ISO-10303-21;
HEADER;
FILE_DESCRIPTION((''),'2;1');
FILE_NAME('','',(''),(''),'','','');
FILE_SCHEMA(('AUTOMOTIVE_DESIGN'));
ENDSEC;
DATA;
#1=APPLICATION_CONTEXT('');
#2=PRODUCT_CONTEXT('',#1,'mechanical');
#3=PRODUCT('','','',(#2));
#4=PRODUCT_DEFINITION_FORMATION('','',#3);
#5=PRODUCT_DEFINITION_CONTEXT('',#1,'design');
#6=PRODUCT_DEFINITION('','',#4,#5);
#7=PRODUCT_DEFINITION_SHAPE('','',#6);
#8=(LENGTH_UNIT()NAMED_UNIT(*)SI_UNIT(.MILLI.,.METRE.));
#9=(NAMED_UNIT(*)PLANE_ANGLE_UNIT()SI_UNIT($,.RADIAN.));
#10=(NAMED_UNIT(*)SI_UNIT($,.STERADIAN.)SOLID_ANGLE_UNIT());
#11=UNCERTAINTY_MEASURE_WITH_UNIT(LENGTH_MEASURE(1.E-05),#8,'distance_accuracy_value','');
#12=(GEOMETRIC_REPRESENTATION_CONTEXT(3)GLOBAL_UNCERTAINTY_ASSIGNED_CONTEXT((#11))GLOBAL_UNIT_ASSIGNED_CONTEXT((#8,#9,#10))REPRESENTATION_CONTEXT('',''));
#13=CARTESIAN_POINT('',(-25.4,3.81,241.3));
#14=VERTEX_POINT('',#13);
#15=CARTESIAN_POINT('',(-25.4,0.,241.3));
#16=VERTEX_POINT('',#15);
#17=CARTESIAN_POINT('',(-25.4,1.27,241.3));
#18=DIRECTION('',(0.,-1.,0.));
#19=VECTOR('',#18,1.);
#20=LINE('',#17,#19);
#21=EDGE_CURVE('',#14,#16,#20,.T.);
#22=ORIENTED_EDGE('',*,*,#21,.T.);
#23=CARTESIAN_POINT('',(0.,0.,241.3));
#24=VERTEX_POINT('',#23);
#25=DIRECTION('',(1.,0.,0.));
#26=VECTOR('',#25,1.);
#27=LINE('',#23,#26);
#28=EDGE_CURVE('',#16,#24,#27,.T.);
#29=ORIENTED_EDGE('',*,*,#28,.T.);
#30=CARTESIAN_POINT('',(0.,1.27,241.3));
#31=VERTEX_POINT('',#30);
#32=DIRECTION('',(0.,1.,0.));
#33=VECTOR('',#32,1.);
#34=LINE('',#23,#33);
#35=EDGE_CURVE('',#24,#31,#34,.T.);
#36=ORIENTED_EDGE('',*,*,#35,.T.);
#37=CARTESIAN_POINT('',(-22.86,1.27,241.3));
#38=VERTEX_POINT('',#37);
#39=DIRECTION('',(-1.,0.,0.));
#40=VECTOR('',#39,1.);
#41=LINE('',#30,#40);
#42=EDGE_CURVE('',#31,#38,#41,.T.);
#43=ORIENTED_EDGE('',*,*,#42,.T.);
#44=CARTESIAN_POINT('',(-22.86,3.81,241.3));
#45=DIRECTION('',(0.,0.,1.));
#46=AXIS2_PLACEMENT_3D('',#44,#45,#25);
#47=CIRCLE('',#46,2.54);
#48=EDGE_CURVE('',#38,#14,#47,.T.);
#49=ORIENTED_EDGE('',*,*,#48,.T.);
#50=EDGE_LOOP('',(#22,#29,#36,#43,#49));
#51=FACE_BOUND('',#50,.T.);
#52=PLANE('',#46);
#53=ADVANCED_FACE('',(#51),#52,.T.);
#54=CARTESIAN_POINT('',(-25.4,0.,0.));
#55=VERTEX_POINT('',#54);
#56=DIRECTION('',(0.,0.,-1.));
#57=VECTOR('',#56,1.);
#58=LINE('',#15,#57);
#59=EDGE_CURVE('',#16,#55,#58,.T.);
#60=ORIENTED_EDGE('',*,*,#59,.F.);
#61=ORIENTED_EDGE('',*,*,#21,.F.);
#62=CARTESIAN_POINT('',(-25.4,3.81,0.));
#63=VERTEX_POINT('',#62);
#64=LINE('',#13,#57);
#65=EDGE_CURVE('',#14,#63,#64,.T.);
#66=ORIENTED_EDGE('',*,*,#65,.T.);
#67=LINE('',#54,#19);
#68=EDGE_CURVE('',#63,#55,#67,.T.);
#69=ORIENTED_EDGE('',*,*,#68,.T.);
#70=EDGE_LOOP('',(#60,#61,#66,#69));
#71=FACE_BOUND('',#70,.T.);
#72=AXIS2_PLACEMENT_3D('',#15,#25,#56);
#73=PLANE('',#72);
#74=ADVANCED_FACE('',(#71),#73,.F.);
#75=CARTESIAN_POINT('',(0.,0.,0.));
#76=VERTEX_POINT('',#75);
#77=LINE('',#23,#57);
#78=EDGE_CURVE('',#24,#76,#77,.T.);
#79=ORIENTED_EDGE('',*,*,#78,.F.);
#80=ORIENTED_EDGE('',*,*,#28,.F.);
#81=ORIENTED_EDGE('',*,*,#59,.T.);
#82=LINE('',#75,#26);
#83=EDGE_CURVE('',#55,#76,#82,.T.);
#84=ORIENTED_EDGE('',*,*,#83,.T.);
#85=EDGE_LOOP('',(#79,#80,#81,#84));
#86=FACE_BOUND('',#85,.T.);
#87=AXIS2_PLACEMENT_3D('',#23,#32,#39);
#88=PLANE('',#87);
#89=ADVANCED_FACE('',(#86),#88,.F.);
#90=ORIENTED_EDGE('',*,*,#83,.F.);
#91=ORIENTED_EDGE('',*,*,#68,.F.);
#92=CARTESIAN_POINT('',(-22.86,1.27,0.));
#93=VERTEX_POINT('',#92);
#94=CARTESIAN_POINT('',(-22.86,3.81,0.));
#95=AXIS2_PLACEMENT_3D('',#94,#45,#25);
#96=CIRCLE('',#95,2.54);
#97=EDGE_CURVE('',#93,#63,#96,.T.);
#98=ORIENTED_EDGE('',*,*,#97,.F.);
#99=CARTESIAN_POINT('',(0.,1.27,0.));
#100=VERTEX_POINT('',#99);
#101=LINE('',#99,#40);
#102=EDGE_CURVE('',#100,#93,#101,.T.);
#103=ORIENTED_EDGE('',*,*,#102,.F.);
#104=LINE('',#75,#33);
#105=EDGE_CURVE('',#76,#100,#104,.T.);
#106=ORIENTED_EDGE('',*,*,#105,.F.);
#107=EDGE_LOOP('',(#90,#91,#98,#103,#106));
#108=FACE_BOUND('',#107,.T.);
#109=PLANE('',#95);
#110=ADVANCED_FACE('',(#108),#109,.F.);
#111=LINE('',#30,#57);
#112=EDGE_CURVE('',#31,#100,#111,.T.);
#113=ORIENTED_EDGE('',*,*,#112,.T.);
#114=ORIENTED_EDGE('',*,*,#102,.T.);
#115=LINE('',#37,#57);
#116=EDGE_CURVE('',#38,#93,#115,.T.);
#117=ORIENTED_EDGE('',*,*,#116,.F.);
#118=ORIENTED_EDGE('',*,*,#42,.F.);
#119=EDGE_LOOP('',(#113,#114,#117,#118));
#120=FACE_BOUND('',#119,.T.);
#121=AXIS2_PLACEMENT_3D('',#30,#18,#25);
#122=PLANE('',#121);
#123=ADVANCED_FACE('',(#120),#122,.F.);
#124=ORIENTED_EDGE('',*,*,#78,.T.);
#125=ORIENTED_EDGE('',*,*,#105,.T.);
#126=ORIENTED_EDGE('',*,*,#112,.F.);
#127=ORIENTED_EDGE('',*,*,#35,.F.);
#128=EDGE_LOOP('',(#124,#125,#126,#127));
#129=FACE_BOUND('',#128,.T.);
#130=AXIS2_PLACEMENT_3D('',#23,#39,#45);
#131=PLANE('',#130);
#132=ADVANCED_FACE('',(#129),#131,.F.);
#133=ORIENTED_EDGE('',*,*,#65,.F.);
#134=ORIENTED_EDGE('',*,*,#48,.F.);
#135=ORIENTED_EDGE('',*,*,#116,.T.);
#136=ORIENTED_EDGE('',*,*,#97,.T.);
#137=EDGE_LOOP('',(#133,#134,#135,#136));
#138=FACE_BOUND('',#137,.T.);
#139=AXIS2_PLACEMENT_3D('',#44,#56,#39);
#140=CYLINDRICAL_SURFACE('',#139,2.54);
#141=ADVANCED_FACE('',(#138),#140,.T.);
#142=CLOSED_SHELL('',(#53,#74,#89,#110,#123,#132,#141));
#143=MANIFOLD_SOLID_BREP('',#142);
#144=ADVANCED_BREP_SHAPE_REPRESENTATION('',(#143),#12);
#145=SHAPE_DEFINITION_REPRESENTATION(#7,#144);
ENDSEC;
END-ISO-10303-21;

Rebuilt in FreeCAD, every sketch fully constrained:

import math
import FreeCAD as App
import Part
import Sketcher

V = App.Vector
Q = App.Units.Quantity

doc = App.newDocument("Part")
params = doc.addObject("Spreadsheet::Sheet", "Params")
for row, (alias, value) in enumerate([
    ("sketch1_radius", "0.1 in"),
    ("sketch1_width", "1 in"),
    ("sketch1_height", "0.15 in"),
    ("pad1_length", "9.5 in"),
], start=1):
    params.set(f"A{row}", alias)
    params.set(f"B{row}", "=" + value)
    params.setAlias(f"B{row}", alias)

body = doc.addObject("PartDesign::Body", "Body")

sketch1 = doc.addObject("Sketcher::SketchObject", "Sketch")
body.addObject(sketch1)
sketch1.AttachmentSupport = (doc.XY_Plane, [""])
sketch1.MapMode = "FlatFace"
sketch1.addGeometry([
    Part.ArcOfCircle(Part.Circle(V(-22.86, 3.81, 0), V(0, 0, 1), 2.54), math.radians(-90), math.radians(180)),
    Part.LineSegment(V(-25.4, 3.81, 0), V(-25.4, 0, 0)),
    Part.LineSegment(V(-25.4, 0, 0), V(0, 0, 0)),
    Part.LineSegment(V(0, 0, 0), V(0, 1.27, 0)),
    Part.LineSegment(V(0, 1.27, 0), V(-22.86, 1.27, 0)),
], False)
sketch1.addConstraint([
    Sketcher.Constraint("Tangent", 0, 2, 1, 1),
    Sketcher.Constraint("Coincident", 1, 2, 2, 1),
    Sketcher.Constraint("Coincident", 2, 2, 3, 1),
    Sketcher.Constraint("Coincident", 3, 2, 4, 1),
    Sketcher.Constraint("Tangent", 4, 2, 0, 1),
    Sketcher.Constraint("Vertical", 1),
    Sketcher.Constraint("Horizontal", 2),
    Sketcher.Constraint("Vertical", 3),
    Sketcher.Constraint("Horizontal", 4),
    Sketcher.Constraint("Coincident", 2, 2, -1, 1),
    Sketcher.Constraint("Radius", 0, Q("0.1 in")),
    Sketcher.Constraint("DistanceX", 2, 1, 2, 2, Q("1 in")),
    Sketcher.Constraint("DistanceY", 1, 2, 1, 1, Q("0.15 in")),
])
sketch1.setExpression("Constraints[10]", "Params.sketch1_radius")
sketch1.setExpression("Constraints[11]", "Params.sketch1_width")
sketch1.setExpression("Constraints[12]", "Params.sketch1_height")
pad1 = doc.addObject("PartDesign::Pad", "Pad")
body.addObject(pad1)
pad1.Profile = sketch1
pad1.setExpression("Length", "Params.pad1_length")

doc.recompute()
